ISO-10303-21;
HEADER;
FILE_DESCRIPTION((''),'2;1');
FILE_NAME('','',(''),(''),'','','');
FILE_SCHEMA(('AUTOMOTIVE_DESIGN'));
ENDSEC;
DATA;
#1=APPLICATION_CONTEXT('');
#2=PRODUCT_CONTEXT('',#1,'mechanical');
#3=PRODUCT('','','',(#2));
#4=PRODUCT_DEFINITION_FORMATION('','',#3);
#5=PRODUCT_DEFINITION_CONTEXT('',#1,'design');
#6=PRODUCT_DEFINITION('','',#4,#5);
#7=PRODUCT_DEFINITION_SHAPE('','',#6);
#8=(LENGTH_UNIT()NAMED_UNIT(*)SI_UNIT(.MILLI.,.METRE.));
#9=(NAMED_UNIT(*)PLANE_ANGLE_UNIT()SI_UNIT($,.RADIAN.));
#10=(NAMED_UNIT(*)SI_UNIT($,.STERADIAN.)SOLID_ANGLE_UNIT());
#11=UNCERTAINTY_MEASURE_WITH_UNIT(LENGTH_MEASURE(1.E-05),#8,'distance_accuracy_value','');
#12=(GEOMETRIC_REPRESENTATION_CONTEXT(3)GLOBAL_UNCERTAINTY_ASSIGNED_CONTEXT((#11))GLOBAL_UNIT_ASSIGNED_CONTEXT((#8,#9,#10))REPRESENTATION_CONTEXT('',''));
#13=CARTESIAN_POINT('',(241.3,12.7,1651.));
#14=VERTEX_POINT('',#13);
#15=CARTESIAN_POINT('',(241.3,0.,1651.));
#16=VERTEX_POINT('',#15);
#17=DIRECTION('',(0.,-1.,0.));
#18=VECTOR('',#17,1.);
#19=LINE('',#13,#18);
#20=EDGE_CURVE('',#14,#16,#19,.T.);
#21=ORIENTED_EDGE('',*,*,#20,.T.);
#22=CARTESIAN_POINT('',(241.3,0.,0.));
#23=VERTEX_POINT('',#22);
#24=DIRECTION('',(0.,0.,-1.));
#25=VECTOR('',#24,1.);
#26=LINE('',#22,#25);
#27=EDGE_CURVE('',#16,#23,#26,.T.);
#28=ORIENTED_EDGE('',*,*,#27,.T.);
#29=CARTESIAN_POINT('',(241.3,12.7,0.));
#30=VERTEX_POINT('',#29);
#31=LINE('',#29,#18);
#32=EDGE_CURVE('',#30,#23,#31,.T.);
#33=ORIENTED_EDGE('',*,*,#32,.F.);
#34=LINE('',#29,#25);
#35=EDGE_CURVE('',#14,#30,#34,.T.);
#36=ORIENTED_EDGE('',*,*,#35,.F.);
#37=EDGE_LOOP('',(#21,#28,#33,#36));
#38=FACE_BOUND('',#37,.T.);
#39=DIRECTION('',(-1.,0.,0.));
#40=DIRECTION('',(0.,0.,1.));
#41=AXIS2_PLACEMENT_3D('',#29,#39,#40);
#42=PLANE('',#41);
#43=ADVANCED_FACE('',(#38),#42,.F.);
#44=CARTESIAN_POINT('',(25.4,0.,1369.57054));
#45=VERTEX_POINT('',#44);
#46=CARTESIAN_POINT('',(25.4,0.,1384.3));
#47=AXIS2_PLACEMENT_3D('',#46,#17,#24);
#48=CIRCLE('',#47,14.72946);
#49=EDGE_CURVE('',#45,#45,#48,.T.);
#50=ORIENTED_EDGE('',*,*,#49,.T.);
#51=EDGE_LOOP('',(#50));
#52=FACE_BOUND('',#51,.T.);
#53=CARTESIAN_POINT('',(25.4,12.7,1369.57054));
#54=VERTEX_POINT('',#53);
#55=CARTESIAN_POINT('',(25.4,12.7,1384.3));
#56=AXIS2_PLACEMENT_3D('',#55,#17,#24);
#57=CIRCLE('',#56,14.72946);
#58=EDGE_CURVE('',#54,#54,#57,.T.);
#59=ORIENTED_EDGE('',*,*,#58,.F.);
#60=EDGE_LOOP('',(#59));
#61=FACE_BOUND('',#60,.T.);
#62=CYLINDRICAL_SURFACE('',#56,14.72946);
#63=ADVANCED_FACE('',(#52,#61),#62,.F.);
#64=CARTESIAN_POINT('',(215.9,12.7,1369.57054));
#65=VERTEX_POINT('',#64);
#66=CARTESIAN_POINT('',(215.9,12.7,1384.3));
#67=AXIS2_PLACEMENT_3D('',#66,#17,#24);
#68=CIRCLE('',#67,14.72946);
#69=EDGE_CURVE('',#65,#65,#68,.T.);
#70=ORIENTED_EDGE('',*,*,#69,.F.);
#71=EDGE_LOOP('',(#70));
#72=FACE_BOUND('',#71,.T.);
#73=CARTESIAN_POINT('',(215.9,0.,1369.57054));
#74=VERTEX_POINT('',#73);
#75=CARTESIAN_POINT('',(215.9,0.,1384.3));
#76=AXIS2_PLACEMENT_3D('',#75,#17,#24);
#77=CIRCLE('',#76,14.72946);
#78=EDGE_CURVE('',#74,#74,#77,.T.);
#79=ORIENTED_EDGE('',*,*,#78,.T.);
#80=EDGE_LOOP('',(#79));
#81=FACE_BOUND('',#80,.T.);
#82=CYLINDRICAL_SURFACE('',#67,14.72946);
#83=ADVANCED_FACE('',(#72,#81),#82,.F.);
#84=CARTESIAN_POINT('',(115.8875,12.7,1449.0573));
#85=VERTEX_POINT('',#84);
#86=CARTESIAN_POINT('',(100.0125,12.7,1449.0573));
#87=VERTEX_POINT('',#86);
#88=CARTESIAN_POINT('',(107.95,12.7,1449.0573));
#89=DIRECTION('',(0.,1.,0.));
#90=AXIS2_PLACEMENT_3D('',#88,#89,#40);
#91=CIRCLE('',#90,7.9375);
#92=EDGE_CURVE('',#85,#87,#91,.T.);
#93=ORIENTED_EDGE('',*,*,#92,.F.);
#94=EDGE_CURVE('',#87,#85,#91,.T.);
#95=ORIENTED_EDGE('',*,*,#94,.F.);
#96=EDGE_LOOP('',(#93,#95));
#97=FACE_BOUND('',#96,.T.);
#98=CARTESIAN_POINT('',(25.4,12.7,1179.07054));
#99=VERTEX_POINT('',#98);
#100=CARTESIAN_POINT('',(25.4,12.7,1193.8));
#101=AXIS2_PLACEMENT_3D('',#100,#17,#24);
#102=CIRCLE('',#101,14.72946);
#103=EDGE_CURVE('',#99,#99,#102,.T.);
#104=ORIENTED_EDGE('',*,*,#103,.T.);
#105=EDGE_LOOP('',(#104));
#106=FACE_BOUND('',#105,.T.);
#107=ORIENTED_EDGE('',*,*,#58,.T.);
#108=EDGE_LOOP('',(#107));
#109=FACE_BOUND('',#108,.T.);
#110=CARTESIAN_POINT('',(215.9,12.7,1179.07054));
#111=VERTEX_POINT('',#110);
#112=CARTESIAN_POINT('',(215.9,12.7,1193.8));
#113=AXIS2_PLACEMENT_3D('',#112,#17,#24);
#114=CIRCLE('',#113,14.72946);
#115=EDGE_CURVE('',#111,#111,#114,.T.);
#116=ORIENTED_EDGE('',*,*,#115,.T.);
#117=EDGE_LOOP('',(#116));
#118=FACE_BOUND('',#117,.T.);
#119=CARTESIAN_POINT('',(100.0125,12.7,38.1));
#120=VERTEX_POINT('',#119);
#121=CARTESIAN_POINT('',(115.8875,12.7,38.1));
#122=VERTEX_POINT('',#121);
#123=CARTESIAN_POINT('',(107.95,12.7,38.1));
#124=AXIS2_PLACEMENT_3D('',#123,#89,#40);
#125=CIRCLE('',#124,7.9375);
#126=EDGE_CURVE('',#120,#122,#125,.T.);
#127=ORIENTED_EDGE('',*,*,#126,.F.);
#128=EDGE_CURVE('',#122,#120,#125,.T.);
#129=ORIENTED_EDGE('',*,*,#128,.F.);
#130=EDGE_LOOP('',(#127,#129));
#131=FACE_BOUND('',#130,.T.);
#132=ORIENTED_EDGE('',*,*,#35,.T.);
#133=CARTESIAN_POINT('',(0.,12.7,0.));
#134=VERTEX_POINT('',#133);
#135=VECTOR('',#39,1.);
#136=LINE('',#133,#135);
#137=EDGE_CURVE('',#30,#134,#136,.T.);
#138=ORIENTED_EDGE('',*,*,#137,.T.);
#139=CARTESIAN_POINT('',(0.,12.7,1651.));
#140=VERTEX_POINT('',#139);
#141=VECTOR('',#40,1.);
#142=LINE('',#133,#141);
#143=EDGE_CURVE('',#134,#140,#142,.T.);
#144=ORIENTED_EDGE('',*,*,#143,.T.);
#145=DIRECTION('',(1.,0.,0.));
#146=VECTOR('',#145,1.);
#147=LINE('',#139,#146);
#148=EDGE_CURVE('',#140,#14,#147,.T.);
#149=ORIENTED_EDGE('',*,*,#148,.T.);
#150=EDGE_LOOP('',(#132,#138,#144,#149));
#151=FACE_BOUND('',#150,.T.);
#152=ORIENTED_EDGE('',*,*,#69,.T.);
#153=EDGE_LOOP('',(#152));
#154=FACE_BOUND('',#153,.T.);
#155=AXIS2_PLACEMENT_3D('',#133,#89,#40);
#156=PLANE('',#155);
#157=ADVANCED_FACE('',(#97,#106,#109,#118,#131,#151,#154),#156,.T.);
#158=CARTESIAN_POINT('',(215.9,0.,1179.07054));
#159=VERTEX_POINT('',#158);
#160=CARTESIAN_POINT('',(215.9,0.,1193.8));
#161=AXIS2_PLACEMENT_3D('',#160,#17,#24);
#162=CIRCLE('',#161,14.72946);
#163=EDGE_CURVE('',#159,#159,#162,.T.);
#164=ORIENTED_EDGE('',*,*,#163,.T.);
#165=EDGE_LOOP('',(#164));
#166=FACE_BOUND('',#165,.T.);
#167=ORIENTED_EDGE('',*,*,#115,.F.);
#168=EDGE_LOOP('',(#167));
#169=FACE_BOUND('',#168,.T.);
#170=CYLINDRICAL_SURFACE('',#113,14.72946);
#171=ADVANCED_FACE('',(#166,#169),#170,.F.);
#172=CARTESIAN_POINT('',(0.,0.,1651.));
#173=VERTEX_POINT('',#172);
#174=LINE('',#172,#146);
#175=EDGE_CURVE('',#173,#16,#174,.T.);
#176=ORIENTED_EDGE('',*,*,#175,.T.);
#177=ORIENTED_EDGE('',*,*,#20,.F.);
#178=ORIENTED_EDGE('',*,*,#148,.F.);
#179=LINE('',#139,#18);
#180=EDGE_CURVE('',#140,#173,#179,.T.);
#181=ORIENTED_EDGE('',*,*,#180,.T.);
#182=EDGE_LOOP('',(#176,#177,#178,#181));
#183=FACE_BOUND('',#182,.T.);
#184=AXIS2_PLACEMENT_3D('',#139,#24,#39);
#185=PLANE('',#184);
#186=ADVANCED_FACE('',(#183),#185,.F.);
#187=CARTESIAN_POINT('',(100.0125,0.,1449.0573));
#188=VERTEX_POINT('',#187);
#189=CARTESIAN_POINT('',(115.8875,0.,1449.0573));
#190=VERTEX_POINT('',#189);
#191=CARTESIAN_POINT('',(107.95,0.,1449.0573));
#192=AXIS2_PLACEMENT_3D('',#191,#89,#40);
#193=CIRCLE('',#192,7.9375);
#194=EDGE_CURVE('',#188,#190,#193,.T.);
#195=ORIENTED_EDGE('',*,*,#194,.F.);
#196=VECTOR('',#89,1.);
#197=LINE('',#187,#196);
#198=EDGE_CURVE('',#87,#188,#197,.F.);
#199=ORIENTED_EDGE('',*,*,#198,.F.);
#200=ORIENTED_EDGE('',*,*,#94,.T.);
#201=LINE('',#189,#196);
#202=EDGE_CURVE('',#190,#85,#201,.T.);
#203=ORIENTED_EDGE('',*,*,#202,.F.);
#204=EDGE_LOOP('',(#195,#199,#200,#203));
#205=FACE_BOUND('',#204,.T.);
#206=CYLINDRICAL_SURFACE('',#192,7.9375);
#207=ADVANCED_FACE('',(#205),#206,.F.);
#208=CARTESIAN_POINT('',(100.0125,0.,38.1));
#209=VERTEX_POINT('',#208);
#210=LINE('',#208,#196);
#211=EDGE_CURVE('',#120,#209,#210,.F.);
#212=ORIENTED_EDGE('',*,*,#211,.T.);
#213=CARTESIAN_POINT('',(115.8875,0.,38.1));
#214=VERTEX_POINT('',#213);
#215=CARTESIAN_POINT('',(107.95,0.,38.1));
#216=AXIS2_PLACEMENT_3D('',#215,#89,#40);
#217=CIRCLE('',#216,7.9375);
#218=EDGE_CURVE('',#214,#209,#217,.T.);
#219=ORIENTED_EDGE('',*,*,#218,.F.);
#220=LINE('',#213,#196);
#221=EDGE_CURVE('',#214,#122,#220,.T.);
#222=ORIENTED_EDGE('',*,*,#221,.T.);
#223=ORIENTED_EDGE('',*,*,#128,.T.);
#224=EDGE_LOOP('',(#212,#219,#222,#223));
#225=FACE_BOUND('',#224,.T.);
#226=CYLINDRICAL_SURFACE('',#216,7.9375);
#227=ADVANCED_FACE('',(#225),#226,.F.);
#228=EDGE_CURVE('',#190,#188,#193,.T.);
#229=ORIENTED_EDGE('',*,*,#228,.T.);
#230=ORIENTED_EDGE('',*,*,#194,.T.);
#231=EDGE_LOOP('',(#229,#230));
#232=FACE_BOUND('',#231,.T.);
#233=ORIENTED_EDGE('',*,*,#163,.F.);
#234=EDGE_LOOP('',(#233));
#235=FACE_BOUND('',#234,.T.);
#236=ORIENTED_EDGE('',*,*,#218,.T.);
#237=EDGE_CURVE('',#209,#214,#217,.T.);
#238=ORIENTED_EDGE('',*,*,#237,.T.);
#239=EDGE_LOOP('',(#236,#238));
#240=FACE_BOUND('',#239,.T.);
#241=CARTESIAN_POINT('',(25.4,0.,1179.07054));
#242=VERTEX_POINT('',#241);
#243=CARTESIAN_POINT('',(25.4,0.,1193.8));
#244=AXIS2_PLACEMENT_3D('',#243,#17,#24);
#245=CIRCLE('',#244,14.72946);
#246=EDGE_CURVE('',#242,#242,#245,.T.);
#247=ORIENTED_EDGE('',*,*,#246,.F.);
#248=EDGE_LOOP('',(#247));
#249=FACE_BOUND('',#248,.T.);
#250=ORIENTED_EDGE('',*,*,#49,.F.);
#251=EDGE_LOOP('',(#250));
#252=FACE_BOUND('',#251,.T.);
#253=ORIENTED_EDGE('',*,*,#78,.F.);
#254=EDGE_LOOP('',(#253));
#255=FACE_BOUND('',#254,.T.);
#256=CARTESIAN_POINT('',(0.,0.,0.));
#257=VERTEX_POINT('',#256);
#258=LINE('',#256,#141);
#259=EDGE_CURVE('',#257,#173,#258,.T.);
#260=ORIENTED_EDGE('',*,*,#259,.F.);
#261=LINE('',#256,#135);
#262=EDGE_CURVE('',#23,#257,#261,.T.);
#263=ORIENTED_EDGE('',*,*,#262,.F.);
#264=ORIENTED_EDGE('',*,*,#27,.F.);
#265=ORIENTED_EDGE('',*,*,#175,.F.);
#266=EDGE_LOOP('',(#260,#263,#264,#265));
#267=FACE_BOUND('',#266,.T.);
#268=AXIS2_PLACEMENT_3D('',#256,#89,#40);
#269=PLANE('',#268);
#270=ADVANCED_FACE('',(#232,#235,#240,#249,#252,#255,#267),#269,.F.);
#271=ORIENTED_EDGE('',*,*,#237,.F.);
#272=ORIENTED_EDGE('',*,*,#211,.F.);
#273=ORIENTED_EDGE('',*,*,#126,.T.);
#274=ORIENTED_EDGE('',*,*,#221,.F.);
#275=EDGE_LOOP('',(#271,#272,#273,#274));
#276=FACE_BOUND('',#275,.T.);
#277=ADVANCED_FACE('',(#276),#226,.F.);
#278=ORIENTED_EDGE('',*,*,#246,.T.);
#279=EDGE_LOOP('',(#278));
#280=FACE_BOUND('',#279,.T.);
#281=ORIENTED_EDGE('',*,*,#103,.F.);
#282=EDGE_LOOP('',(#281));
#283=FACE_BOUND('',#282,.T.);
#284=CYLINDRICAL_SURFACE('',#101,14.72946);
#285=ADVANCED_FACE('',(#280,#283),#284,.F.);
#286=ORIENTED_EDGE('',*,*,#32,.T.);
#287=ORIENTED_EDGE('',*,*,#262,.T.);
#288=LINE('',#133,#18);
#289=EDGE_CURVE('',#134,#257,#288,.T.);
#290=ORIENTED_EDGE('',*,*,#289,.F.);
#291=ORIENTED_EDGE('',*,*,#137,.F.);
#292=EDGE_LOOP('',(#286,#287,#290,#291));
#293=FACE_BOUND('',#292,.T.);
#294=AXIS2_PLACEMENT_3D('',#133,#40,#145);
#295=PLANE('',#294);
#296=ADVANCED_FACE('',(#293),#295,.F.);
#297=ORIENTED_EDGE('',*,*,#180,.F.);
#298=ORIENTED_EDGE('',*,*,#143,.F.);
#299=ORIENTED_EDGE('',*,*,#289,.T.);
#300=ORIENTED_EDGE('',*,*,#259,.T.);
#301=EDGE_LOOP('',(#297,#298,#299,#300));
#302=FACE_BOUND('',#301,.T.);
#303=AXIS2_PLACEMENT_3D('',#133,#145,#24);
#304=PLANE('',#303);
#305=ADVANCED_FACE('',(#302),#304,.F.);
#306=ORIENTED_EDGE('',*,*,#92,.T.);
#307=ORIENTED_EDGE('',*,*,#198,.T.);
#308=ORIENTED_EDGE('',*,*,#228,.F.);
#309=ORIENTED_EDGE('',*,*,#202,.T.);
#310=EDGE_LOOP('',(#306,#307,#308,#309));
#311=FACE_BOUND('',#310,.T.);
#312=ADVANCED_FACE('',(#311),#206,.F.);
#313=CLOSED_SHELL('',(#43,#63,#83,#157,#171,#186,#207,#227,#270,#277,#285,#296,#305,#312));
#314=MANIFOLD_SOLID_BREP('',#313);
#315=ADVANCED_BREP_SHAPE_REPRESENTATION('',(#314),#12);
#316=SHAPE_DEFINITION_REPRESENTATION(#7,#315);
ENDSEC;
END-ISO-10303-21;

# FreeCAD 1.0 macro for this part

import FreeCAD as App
import Part
import Sketcher
Q = App.Units.Quantity


def add_polygon(sketch, points):
    """Adds a closed chain of lines whose ends are joined by coincident constraints."""
    first, n = sketch.GeometryCount, len(points)
    for a, b in zip(points, points[1:] + points[:1]):
        sketch.addGeometry(Part.LineSegment(App.Vector(*a, 0), App.Vector(*b, 0)), False)
    for i in range(n):
        sketch.addConstraint(Sketcher.Constraint("Coincident", first + i, 2, first + (i + 1) % n, 1))

doc = App.newDocument("Part")
body = doc.addObject("PartDesign::Body", "Body")

# Sketch on XZ plane
sketch1 = body.newObject("Sketcher::SketchObject", "Sketch")
sketch1.AttachmentSupport = (doc.getObject("XZ_Plane"), [""])
sketch1.MapMode = "FlatFace"
add_polygon(sketch1, [(0, 0), (0, 1651), (241, 1651), (241, 0)])  # lines 0-3
sketch1.addConstraint([
    Sketcher.Constraint("Vertical", 0),
    Sketcher.Constraint("Horizontal", 1),
    Sketcher.Constraint("Vertical", 2),
    Sketcher.Constraint("Horizontal", 3),
    Sketcher.Constraint("Coincident", 3, 2, -1, 1),
    Sketcher.Constraint("DistanceY", 0, 1, 0, 2, Q("65 in")),
    Sketcher.Constraint("DistanceX", 1, 1, 1, 2, Q("9.5 in")),
])
pad1 = body.newObject("PartDesign::Pad", "Pad")
pad1.Profile = sketch1
pad1.Length = Q("0.5 in")
pad1.Reversed = True

# Sketch on XZ plane
sketch2 = body.newObject("Sketcher::SketchObject", "Sketch001")
sketch2.AttachmentSupport = (doc.getObject("XZ_Plane"), [""])
sketch2.MapMode = "FlatFace"
sketch2.AttachmentOffset = App.Placement(App.Vector(0, 0, -0.5 * 25.4), App.Rotation())
sketch2.addGeometry([
    Part.Circle(App.Vector(108, 38, 0), App.Vector(0, 0, 1), 8),
    Part.Circle(App.Vector(108, 1449, 0), App.Vector(0, 0, 1), 8),
], False)
sketch2.addConstraint([
    Sketcher.Constraint("Equal", 0, 1),
    Sketcher.Constraint("Vertical", 0, 3, 1, 3),
    Sketcher.Constraint("Diameter", 0, Q("0.625 in")),
    Sketcher.Constraint("DistanceY", -1, 1, 0, 3, Q("1.5 in")),
    Sketcher.Constraint("DistanceX", -1, 1, 0, 3, Q("4.25 in")),
    Sketcher.Constraint("DistanceY", -1, 1, 1, 3, Q("57.0495 in")),
])
pocket1 = body.newObject("PartDesign::Pocket", "Pocket")
pocket1.Profile = sketch2
pocket1.Type = "ThroughAll"
pocket1.Midplane = True

# Sketch on XZ plane
sketch3 = body.newObject("Sketcher::SketchObject", "Sketch002")
sketch3.AttachmentSupport = (doc.getObject("XZ_Plane"), [""])
sketch3.MapMode = "FlatFace"
sketch3.addGeometry([
    Part.Circle(App.Vector(216, 1194, 0), App.Vector(0, 0, 1), 15),
    Part.Circle(App.Vector(25, 1194, 0), App.Vector(0, 0, 1), 15),
    Part.Circle(App.Vector(25, 1384, 0), App.Vector(0, 0, 1), 15),
    Part.Circle(App.Vector(216, 1384, 0), App.Vector(0, 0, 1), 15),
], False)
sketch3.addConstraint([
    Sketcher.Constraint("Equal", 0, 1),
    Sketcher.Constraint("Equal", 1, 2),
    Sketcher.Constraint("Equal", 2, 3),
    Sketcher.Constraint("Horizontal", 0, 3, 1, 3),
    Sketcher.Constraint("Horizontal", 2, 3, 3, 3),
    Sketcher.Constraint("Vertical", 1, 3, 2, 3),
    Sketcher.Constraint("Vertical", 0, 3, 3, 3),
    Sketcher.Constraint("DistanceY", -1, 1, 0, 3, Q("47 in")),
    Sketcher.Constraint("DistanceX", -1, 1, 1, 3, Q("1 in")),
    Sketcher.Constraint("Diameter", 0, Q("1.1598 in")),
    Sketcher.Constraint("DistanceX", -1, 1, 0, 3, Q("8.5 in")),
    Sketcher.Constraint("DistanceY", -1, 1, 2, 3, Q("54.5 in")),
])
pocket2 = body.newObject("PartDesign::Pocket", "Pocket001")
pocket2.Profile = sketch3
pocket2.Type = "ThroughAll"

doc.recompute()
